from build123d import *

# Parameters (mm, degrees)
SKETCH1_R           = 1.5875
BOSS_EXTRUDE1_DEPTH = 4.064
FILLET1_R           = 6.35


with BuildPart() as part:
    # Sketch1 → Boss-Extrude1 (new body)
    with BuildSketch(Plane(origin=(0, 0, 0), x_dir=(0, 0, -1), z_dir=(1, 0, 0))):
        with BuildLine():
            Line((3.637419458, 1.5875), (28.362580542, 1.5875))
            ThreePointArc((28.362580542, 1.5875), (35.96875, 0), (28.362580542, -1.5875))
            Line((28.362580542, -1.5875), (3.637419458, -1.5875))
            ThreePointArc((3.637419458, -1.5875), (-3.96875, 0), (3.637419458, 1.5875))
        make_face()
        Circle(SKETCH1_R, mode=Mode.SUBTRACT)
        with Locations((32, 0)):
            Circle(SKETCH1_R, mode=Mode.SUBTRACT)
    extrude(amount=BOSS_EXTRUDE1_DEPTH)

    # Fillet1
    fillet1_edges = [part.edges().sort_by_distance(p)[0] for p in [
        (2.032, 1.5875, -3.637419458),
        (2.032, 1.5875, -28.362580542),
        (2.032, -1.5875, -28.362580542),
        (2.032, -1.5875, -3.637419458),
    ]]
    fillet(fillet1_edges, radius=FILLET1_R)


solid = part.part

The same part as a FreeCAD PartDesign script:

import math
import FreeCAD as App
import Part
import Sketcher
from FreeCAD import Vector
Q = App.Units.Quantity


def edges_at(feature, points):
    """Names of the edges that pass closest to the given points."""
    edges = feature.Shape.Edges
    near = lambda p: min(range(len(edges)), key=lambda i: edges[i].distToShape(Part.Vertex(*p))[0])
    return sorted({f"Edge{near(p) + 1}" for p in points})

doc = App.newDocument("Part")
params = doc.addObject("Spreadsheet::Sheet", "Params")
for row, (alias, value) in enumerate([
    ("sketch1_diameter", "0.125 in"),
    ("sketch1_radius", "0.15625 in"),
    ("pad1_length", "0.16 in"),
    ("fillet_radius", "0.25 in"),
], start=1):
    params.set(f"A{row}", alias)
    params.set(f"B{row}", "=" + value)
    params.setAlias(f"B{row}", alias)

body = doc.addObject("PartDesign::Body", "Body")

# Sketch on YZ plane
sketch1 = body.newObject("Sketcher::SketchObject", "Sketch")
sketch1.AttachmentSupport = (doc.getObject("YZ_Plane"), [""])
sketch1.MapMode = "FlatFace"
sketch1.addGeometry([
    Part.LineSegment(Vector(1.5875, -28.362581, 0), Vector(1.5875, -3.637419, 0)),  # 0
    Part.ArcOfCircle(Part.Circle(Vector(0, 0, 0), Vector(0, 0, 1), 3.96875), math.radians(-66.421822), math.radians(246.421822)),  # 1
    Part.LineSegment(Vector(-1.5875, -3.637419, 0), Vector(-1.5875, -28.362581, 0)),  # 2
    Part.ArcOfCircle(Part.Circle(Vector(0, -32, 0), Vector(0, 0, 1), 3.96875), math.radians(113.578178), math.radians(426.421822)),  # 3
    Part.Circle(Vector(0, -32, 0), Vector(0, 0, 1), 1.5875),  # 4
    Part.Circle(Vector(0, 0, 0), Vector(0, 0, 1), 1.5875),  # 5
], False)
sketch1.addConstraint([
    Sketcher.Constraint("Coincident", 0, 2, 1, 1),
    Sketcher.Constraint("Coincident", 1, 2, 2, 1),
    Sketcher.Constraint("Coincident", 2, 2, 3, 1),
    Sketcher.Constraint("Coincident", 3, 2, 0, 1),
    Sketcher.Constraint("Vertical", 0),
    Sketcher.Constraint("Vertical", 2),
    Sketcher.Constraint("Coincident", 1, 3, -1, 1),
    Sketcher.Constraint("Coincident", 5, 3, -1, 1),
    Sketcher.Constraint("Coincident", 4, 3, 3, 3),
    Sketcher.Constraint("Equal", 1, 3),
    Sketcher.Constraint("Equal", 4, 5),
    Sketcher.Constraint("Symmetric", 2, 2, 3, 2, -2),
    Sketcher.Constraint("Diameter", 4, Q("0.125 in")),
    Sketcher.Constraint("Radius", 1, Q("0.15625 in")),
    Sketcher.Constraint("DistanceX", -1, 1, 0, 2, Q("0.0625 in")),
    Sketcher.Constraint("DistanceY", 0, 1, 0, 2, 24.725161),
])
sketch1.setExpression("Constraints[12]", "Params.sketch1_diameter")
sketch1.setExpression("Constraints[13]", "Params.sketch1_radius")
pad1 = body.newObject("PartDesign::Pad", "Pad")
pad1.Profile = sketch1
pad1.setExpression("Length", "Params.pad1_length")
doc.recompute()

fillet = body.newObject("PartDesign::Fillet", "Fillet")
fillet.Base = (pad1, edges_at(pad1, [
    (2.032, 1.587, -3.637),
    (2.032, 1.587, -28.363),
    (2.032, -1.587, -28.363),
    (2.032, -1.587, -3.637),
]))
fillet.setExpression("Radius", "Params.fillet_radius")

doc.recompute()
